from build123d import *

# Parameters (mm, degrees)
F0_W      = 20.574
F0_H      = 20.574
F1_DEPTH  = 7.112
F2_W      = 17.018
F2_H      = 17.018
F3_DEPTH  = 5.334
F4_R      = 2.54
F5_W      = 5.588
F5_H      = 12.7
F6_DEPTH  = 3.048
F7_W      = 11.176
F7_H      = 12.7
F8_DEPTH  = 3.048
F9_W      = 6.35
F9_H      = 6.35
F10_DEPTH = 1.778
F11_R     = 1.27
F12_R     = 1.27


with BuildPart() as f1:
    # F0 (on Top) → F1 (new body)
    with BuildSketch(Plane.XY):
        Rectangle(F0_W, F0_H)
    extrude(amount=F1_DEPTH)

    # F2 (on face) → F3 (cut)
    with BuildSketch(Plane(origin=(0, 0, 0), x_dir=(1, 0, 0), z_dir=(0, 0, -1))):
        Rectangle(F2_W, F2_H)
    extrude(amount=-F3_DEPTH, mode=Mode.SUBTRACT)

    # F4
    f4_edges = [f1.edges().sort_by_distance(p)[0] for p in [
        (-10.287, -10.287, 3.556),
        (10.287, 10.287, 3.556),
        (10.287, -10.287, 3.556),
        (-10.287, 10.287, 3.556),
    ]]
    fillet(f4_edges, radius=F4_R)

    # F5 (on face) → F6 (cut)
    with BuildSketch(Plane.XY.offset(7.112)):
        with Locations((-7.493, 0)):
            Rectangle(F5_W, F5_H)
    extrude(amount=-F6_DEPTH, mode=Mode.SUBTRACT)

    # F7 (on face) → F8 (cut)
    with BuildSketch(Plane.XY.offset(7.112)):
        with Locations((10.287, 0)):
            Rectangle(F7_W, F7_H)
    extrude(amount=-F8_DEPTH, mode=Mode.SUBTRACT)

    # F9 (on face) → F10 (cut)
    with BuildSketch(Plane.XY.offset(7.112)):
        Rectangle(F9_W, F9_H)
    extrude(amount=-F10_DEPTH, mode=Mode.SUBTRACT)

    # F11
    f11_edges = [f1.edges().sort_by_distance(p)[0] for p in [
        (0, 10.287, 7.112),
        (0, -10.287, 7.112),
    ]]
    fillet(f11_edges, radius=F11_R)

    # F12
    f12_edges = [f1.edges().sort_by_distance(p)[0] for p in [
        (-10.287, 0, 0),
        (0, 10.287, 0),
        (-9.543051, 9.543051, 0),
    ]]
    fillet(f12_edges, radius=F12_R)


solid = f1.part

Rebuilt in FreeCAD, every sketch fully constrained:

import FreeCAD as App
import Part
import Sketcher
Q = App.Units.Quantity


def edges_at(feature, points):
    """Names of the edges that pass closest to the given points."""
    edges = feature.Shape.Edges
    near = lambda p: min(range(len(edges)), key=lambda i: edges[i].distToShape(Part.Vertex(*p))[0])
    return sorted({f"Edge{near(p) + 1}" for p in points})

doc = App.newDocument("Part")
body = doc.addObject("PartDesign::Body", "Body")

# Sketch on XY plane
sketch1 = body.newObject("Sketcher::SketchObject", "Sketch")
sketch1.AttachmentSupport = (doc.getObject("XY_Plane"), [""])
sketch1.MapMode = "FlatFace"
sketch1.addGeometry([
    Part.LineSegment(App.Vector(-10, 10, 0), App.Vector(-10, -10, 0)),
    Part.LineSegment(App.Vector(-10, -10, 0), App.Vector(10, -10, 0)),
    Part.LineSegment(App.Vector(10, -10, 0), App.Vector(10, 10, 0)),
    Part.LineSegment(App.Vector(10, 10, 0), App.Vector(-10, 10, 0)),
], False)
sketch1.addConstraint([
    Sketcher.Constraint("Coincident", 0, 2, 1, 1),
    Sketcher.Constraint("Coincident", 1, 2, 2, 1),
    Sketcher.Constraint("Coincident", 2, 2, 3, 1),
    Sketcher.Constraint("Coincident", 3, 2, 0, 1),
    Sketcher.Constraint("Vertical", 0),
    Sketcher.Constraint("Horizontal", 1),
    Sketcher.Constraint("Vertical", 2),
    Sketcher.Constraint("Horizontal", 3),
    Sketcher.Constraint("Symmetric", 0, 2, 2, 2, -1, 1),
    Sketcher.Constraint("Equal", 3, 0),
    Sketcher.Constraint("DistanceX", 1, 1, 1, 2, Q("0.81 in")),
])
pad1 = body.newObject("PartDesign::Pad", "Pad")
pad1.Profile = sketch1
pad1.Length = Q("0.28 in")

# Sketch on XY plane
sketch2 = body.newObject("Sketcher::SketchObject", "Sketch001")
sketch2.AttachmentSupport = (doc.getObject("XY_Plane"), [""])
sketch2.MapMode = "FlatFace"
sketch2.addGeometry([
    Part.LineSegment(App.Vector(-9, -9, 0), App.Vector(-9, 9, 0)),
    Part.LineSegment(App.Vector(-9, 9, 0), App.Vector(9, 9, 0)),
    Part.LineSegment(App.Vector(9, 9, 0), App.Vector(9, -9, 0)),
    Part.LineSegment(App.Vector(9, -9, 0), App.Vector(-9, -9, 0)),
], False)
sketch2.addConstraint([
    Sketcher.Constraint("Coincident", 0, 2, 1, 1),
    Sketcher.Constraint("Coincident", 1, 2, 2, 1),
    Sketcher.Constraint("Coincident", 2, 2, 3, 1),
    Sketcher.Constraint("Coincident", 3, 2, 0, 1),
    Sketcher.Constraint("Vertical", 0),
    Sketcher.Constraint("Horizontal", 1),
    Sketcher.Constraint("Vertical", 2),
    Sketcher.Constraint("Horizontal", 3),
    Sketcher.Constraint("Symmetric", 0, 2, 2, 2, -1, 1),
    Sketcher.Constraint("Equal", 3, 0),
    Sketcher.Constraint("DistanceX", 1, 1, 1, 2, Q("0.67 in")),
])
pocket1 = body.newObject("PartDesign::Pocket", "Pocket")
pocket1.Profile = sketch2
pocket1.Length = Q("0.21 in")
pocket1.Reversed = True
doc.recompute()

fillet = body.newObject("PartDesign::Fillet", "Fillet")
fillet.Base = (pocket1, edges_at(pocket1, [
    (-10.287, -10.287, 3.556),
    (10.287, 10.287, 3.556),
    (10.287, -10.287, 3.556),
    (-10.287, 10.287, 3.556),
]))
fillet.Radius = Q("0.1 in")

# Sketch on XY plane
sketch3 = body.newObject("Sketcher::SketchObject", "Sketch002")
sketch3.AttachmentSupport = (doc.getObject("XY_Plane"), [""])
sketch3.MapMode = "FlatFace"
sketch3.AttachmentOffset = App.Placement(App.Vector(0, 0, 0.28 * 25.4), App.Rotation())
sketch3.addGeometry([
    Part.LineSegment(App.Vector(-10, 6, 0), App.Vector(-10, -6, 0)),
    Part.LineSegment(App.Vector(-10, -6, 0), App.Vector(-5, -6, 0)),
    Part.LineSegment(App.Vector(-5, -6, 0), App.Vector(-5, 6, 0)),
    Part.LineSegment(App.Vector(-5, 6, 0), App.Vector(-10, 6, 0)),
], False)
sketch3.addConstraint([
    Sketcher.Constraint("Coincident", 0, 2, 1, 1),
    Sketcher.Constraint("Coincident", 1, 2, 2, 1),
    Sketcher.Constraint("Coincident", 2, 2, 3, 1),
    Sketcher.Constraint("Coincident", 3, 2, 0, 1),
    Sketcher.Constraint("Vertical", 0),
    Sketcher.Constraint("Horizontal", 1),
    Sketcher.Constraint("Vertical", 2),
    Sketcher.Constraint("Horizontal", 3),
    Sketcher.Constraint("DistanceY", 0, 2, 0, 1, Q("0.5 in")),
    Sketcher.Constraint("DistanceX", 1, 1, 1, 2, Q("0.22 in")),
    Sketcher.Constraint("DistanceY", 0, 2, -1, 1, Q("0.25 in")),
    Sketcher.Constraint("DistanceX", 0, 2, -1, 1, Q("0.405 in")),
])
pocket2 = body.newObject("PartDesign::Pocket", "Pocket001")
pocket2.Profile = sketch3
pocket2.Length = Q("0.12 in")

# Sketch on XY plane
sketch4 = body.newObject("Sketcher::SketchObject", "Sketch003")
sketch4.AttachmentSupport = (doc.getObject("XY_Plane"), [""])
sketch4.MapMode = "FlatFace"
sketch4.AttachmentOffset = App.Placement(App.Vector(0, 0, 0.28 * 25.4), App.Rotation())
sketch4.addGeometry([
    Part.LineSegment(App.Vector(5, 6, 0), App.Vector(5, -6, 0)),
    Part.LineSegment(App.Vector(5, -6, 0), App.Vector(16, -6, 0)),
    Part.LineSegment(App.Vector(16, -6, 0), App.Vector(16, 6, 0)),
    Part.LineSegment(App.Vector(16, 6, 0), App.Vector(5, 6, 0)),
], False)
sketch4.addConstraint([
    Sketcher.Constraint("Coincident", 0, 2, 1, 1),
    Sketcher.Constraint("Coincident", 1, 2, 2, 1),
    Sketcher.Constraint("Coincident", 2, 2, 3, 1),
    Sketcher.Constraint("Coincident", 3, 2, 0, 1),
    Sketcher.Constraint("Vertical", 0),
    Sketcher.Constraint("Horizontal", 1),
    Sketcher.Constraint("Vertical", 2),
    Sketcher.Constraint("Horizontal", 3),
    Sketcher.Constraint("DistanceY", 0, 2, 0, 1, Q("0.5 in")),
    Sketcher.Constraint("DistanceX", 1, 1, 1, 2, Q("0.44 in")),
    Sketcher.Constraint("DistanceY", 0, 2, -1, 1, Q("0.25 in")),
    Sketcher.Constraint("DistanceX", -1, 1, 0, 2, Q("0.185 in")),
])
pocket3 = body.newObject("PartDesign::Pocket", "Pocket002")
pocket3.Profile = sketch4
pocket3.Length = Q("0.12 in")

# Sketch on XY plane
sketch5 = body.newObject("Sketcher::SketchObject", "Sketch004")
sketch5.AttachmentSupport = (doc.getObject("XY_Plane"), [""])
sketch5.MapMode = "FlatFace"
sketch5.AttachmentOffset = App.Placement(App.Vector(0, 0, 0.28 * 25.4), App.Rotation())
sketch5.addGeometry([
    Part.LineSegment(App.Vector(-3, 3, 0), App.Vector(-3, -3, 0)),
    Part.LineSegment(App.Vector(-3, -3, 0), App.Vector(3, -3, 0)),
    Part.LineSegment(App.Vector(3, -3, 0), App.Vector(3, 3, 0)),
    Part.LineSegment(App.Vector(3, 3, 0), App.Vector(-3, 3, 0)),
], False)
sketch5.addConstraint([
    Sketcher.Constraint("Coincident", 0, 2, 1, 1),
    Sketcher.Constraint("Coincident", 1, 2, 2, 1),
    Sketcher.Constraint("Coincident", 2, 2, 3, 1),
    Sketcher.Constraint("Coincident", 3, 2, 0, 1),
    Sketcher.Constraint("Vertical", 0),
    Sketcher.Constraint("Horizontal", 1),
    Sketcher.Constraint("Vertical", 2),
    Sketcher.Constraint("Horizontal", 3),
    Sketcher.Constraint("Symmetric", 0, 2, 2, 2, -1, 1),
    Sketcher.Constraint("Equal", 3, 0),
    Sketcher.Constraint("DistanceX", 1, 1, 1, 2, Q("0.25 in")),
])
pocket4 = body.newObject("PartDesign::Pocket", "Pocket003")
pocket4.Profile = sketch5
pocket4.Length = Q("0.07 in")
doc.recompute()

fillet2 = body.newObject("PartDesign::Fillet", "Fillet001")
fillet2.Base = (pocket4, edges_at(pocket4, [(0, 10.287, 7.112), (0, -10.287, 7.112)]))
fillet2.Radius = Q("0.05 in")
doc.recompute()

fillet3 = body.newObject("PartDesign::Fillet", "Fillet002")
fillet3.Base = (fillet2, edges_at(fillet2, [(-10.287, 0, 0), (0, 10.287, 0), (-9.543, 9.543, 0)]))
fillet3.Radius = Q("0.05 in")

doc.recompute()
